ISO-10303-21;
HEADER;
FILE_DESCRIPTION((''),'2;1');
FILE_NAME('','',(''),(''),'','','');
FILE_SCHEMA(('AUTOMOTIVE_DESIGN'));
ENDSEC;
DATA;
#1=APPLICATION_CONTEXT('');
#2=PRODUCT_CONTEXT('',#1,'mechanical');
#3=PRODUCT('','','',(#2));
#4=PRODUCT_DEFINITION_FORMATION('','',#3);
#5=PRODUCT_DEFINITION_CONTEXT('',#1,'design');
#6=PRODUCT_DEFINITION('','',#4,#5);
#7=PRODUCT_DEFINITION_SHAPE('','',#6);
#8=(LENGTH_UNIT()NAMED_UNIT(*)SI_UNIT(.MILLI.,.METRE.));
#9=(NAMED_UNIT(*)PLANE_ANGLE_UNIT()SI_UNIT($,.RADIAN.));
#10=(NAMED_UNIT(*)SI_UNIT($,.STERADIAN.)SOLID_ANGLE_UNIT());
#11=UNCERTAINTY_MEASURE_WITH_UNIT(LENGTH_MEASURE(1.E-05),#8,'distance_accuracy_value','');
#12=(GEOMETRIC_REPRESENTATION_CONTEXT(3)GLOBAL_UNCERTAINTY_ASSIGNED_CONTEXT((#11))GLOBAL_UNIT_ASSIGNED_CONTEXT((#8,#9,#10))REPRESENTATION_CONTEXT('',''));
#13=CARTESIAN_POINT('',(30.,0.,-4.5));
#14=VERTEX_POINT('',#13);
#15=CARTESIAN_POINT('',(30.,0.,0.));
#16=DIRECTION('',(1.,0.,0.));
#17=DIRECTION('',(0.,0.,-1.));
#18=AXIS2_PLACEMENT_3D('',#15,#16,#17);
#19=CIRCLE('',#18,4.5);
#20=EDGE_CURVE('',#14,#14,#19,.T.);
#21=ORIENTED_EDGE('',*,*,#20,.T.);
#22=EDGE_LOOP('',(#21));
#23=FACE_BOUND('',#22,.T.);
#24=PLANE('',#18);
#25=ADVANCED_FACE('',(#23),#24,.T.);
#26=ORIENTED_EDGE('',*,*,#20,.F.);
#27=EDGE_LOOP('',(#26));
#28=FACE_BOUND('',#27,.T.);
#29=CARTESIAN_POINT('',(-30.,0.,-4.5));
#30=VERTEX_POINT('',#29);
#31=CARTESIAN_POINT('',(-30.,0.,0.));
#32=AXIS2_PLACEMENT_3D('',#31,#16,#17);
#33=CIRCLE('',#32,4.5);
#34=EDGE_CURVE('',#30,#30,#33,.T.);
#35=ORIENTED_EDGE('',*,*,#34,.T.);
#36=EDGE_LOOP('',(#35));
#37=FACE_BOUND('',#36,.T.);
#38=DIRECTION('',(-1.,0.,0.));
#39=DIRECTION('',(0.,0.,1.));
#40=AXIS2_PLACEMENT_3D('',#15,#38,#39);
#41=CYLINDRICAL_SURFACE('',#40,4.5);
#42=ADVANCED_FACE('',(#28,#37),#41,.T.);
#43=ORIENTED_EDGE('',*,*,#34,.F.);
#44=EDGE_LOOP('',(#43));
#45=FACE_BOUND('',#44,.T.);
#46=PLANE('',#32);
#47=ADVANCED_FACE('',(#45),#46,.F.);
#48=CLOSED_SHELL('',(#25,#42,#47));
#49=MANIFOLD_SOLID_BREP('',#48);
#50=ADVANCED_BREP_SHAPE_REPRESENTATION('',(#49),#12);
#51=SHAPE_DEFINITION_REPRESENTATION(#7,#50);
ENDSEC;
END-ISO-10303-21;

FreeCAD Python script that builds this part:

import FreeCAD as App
import Part
import Sketcher
from FreeCAD import Vector

doc = App.newDocument("Part")
body = doc.addObject("PartDesign::Body", "Body")

# Sketch on YZ plane
sketch1 = body.newObject("Sketcher::SketchObject", "Sketch")
sketch1.AttachmentSupport = (doc.getObject("YZ_Plane"), [""])
sketch1.MapMode = "FlatFace"
sketch1.addGeometry(Part.Circle(Vector(0, 0, 0), Vector(0, 0, 1), 4.5), False)
sketch1.addConstraint([
    Sketcher.Constraint("Coincident", 0, 3, -1, 1),
    Sketcher.Constraint("Diameter", 0, 9.0),
])
pad1 = body.newObject("PartDesign::Pad", "Pad")
pad1.Profile = sketch1
pad1.Length = 60
pad1.Midplane = True

doc.recompute()
